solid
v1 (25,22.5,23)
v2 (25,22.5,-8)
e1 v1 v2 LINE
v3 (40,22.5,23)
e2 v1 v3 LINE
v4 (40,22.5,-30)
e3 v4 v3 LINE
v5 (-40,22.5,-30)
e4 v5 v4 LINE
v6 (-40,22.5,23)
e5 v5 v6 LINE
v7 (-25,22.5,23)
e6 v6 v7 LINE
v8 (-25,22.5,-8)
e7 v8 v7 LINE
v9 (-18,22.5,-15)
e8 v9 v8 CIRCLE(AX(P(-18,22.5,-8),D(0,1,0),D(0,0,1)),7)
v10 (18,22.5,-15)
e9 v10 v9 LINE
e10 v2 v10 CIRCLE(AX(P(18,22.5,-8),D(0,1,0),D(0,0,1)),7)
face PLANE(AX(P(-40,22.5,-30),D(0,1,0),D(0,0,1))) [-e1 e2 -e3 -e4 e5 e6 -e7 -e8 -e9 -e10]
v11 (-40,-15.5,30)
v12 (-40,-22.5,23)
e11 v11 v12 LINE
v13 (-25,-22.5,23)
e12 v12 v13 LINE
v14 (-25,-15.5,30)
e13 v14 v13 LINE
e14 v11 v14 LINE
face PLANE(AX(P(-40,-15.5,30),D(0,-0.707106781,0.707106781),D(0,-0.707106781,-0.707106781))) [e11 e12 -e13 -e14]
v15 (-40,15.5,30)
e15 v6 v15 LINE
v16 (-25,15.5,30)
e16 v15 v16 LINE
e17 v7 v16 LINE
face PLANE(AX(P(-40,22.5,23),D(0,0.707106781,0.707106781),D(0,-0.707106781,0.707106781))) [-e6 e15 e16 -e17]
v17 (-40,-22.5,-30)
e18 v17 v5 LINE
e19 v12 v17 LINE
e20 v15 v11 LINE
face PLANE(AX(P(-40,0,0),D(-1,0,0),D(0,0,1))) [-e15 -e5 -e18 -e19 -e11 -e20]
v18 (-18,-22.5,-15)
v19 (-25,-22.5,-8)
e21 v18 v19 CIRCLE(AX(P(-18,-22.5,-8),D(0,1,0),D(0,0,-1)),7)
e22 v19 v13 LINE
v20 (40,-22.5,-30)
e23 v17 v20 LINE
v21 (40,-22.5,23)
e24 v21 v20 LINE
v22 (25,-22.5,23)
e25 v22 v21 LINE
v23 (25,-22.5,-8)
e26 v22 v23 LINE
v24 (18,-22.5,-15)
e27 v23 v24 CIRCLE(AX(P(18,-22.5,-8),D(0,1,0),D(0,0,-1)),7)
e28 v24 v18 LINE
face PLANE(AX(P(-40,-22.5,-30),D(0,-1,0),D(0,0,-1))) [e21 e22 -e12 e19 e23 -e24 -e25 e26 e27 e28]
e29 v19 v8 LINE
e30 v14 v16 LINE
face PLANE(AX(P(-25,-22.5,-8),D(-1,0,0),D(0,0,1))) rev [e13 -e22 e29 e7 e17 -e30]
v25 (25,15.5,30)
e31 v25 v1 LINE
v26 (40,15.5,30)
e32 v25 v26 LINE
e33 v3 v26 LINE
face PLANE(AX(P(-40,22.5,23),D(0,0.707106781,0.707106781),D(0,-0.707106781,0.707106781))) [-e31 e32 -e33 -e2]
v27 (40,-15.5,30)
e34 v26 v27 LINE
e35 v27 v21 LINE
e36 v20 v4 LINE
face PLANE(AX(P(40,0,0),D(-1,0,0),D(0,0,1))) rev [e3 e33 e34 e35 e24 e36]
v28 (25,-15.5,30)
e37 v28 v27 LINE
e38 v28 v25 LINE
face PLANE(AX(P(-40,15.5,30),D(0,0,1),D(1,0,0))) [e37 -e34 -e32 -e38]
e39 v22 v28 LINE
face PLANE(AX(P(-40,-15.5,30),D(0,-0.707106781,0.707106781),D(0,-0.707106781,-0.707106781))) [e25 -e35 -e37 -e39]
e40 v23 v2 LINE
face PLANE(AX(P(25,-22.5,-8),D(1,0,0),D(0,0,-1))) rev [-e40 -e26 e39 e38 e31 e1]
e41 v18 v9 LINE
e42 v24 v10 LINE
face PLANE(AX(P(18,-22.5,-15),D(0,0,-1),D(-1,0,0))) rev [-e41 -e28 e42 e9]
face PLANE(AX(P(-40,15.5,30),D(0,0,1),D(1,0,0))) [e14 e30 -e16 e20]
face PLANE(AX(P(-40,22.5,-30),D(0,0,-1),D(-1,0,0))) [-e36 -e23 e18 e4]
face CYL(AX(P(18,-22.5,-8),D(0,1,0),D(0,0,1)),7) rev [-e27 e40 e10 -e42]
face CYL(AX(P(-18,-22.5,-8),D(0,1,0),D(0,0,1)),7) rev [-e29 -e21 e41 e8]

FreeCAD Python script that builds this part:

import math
import FreeCAD as App
import Part
import Sketcher

V = App.Vector

doc = App.newDocument("Part")
body = doc.addObject("PartDesign::Body", "Body")

# Sketch on YZ plane
sketch1 = body.newObject("Sketcher::SketchObject", "Sketch")
sketch1.AttachmentSupport = (doc.getObject("YZ_Plane"), [""])
sketch1.MapMode = "FlatFace"
sketch1.addGeometry([
    Part.LineSegment(V(-16, 30, 0), V(-22, 23, 0)),  # 0
    Part.LineSegment(V(-22, 23, 0), V(-22, -30, 0)),  # 1
    Part.LineSegment(V(-22, -30, 0), V(22, -30, 0)),  # 2
    Part.LineSegment(V(22, -30, 0), V(22, 23, 0)),  # 3
    Part.LineSegment(V(22, 23, 0), V(16, 30, 0)),  # 4
    Part.LineSegment(V(16, 30, 0), V(-16, 30, 0)),  # 5
], False)
sketch1.addConstraint([
    Sketcher.Constraint("Coincident", 0, 2, 1, 1),
    Sketcher.Constraint("Coincident", 1, 2, 2, 1),
    Sketcher.Constraint("Coincident", 2, 2, 3, 1),
    Sketcher.Constraint("Coincident", 3, 2, 4, 1),
    Sketcher.Constraint("Coincident", 4, 2, 5, 1),
    Sketcher.Constraint("Coincident", 5, 2, 0, 1),
    Sketcher.Constraint("Vertical", 1),
    Sketcher.Constraint("Horizontal", 2),
    Sketcher.Constraint("Vertical", 3),
    Sketcher.Constraint("Horizontal", 5),
    Sketcher.Constraint("Symmetric", 0, 2, 3, 2, -2),
    Sketcher.Constraint("Perpendicular", 0, 4),
    Sketcher.Constraint("Equal", 0, 4),
    Sketcher.Constraint("DistanceX", 2, 1, 2, 2, 45.0),
    Sketcher.Constraint("DistanceX", 5, 2, 5, 1, 31.0),
    Sketcher.Constraint("DistanceY", 1, 2, 1, 1, 53.0),
    Sketcher.Constraint("DistanceY", -1, 1, 0, 2, 23.0),
])
pad1 = body.newObject("PartDesign::Pad", "Pad")
pad1.Profile = sketch1
pad1.Type = "TwoLengths"
pad1.Length = 40
pad1.Length2 = 40

# Sketch on XZ plane
sketch2 = body.newObject("Sketcher::SketchObject", "Sketch001")
sketch2.AttachmentSupport = (doc.getObject("XZ_Plane"), [""])
sketch2.MapMode = "FlatFace"
sketch2.AttachmentOffset = App.Placement(V(0, 0, -22.5), App.Rotation())
sketch2.addGeometry([
    Part.LineSegment(V(18, -15, 0), V(-18, -15, 0)),  # 0
    Part.ArcOfCircle(Part.Circle(V(-18, -8, 0), V(0, 0, 1), 7), math.radians(-180), math.radians(-90)),  # 1
    Part.LineSegment(V(-25, -8, 0), V(-25, 30, 0)),  # 2
    Part.LineSegment(V(-25, 30, 0), V(25, 30, 0)),  # 3
    Part.LineSegment(V(25, 30, 0), V(25, -8, 0)),  # 4
    Part.ArcOfCircle(Part.Circle(V(18, -8, 0), V(0, 0, 1), 7), math.radians(-90), math.radians(0)),  # 5
], False)
sketch2.addConstraint([
    Sketcher.Constraint("Tangent", 0, 2, 1, 2),
    Sketcher.Constraint("Tangent", 1, 1, 2, 1),
    Sketcher.Constraint("Coincident", 2, 2, 3, 1),
    Sketcher.Constraint("Coincident", 3, 2, 4, 1),
    Sketcher.Constraint("Tangent", 4, 2, 5, 2),
    Sketcher.Constraint("Tangent", 5, 1, 0, 1),
    Sketcher.Constraint("Horizontal", 0),
    Sketcher.Constraint("Vertical", 2),
    Sketcher.Constraint("Horizontal", 3),
    Sketcher.Constraint("Vertical", 4),
    Sketcher.Constraint("Equal", 1, 5),
    Sketcher.Constraint("Radius", 1, 7.0),
    Sketcher.Constraint("DistanceX", 0, 2, 0, 1, 36.0),
    Sketcher.Constraint("DistanceY", 2, 1, 2, 2, 38.0),
    Sketcher.Constraint("DistanceX", 1, 3, -1, 1, 18.0),
    Sketcher.Constraint("DistanceY", 1, 3, -1, 1, 8.0),
])
pocket1 = body.newObject("PartDesign::Pocket", "Pocket")
pocket1.Profile = sketch2
pocket1.Type = "ThroughAll"
pocket1.Midplane = True

doc.recompute()
